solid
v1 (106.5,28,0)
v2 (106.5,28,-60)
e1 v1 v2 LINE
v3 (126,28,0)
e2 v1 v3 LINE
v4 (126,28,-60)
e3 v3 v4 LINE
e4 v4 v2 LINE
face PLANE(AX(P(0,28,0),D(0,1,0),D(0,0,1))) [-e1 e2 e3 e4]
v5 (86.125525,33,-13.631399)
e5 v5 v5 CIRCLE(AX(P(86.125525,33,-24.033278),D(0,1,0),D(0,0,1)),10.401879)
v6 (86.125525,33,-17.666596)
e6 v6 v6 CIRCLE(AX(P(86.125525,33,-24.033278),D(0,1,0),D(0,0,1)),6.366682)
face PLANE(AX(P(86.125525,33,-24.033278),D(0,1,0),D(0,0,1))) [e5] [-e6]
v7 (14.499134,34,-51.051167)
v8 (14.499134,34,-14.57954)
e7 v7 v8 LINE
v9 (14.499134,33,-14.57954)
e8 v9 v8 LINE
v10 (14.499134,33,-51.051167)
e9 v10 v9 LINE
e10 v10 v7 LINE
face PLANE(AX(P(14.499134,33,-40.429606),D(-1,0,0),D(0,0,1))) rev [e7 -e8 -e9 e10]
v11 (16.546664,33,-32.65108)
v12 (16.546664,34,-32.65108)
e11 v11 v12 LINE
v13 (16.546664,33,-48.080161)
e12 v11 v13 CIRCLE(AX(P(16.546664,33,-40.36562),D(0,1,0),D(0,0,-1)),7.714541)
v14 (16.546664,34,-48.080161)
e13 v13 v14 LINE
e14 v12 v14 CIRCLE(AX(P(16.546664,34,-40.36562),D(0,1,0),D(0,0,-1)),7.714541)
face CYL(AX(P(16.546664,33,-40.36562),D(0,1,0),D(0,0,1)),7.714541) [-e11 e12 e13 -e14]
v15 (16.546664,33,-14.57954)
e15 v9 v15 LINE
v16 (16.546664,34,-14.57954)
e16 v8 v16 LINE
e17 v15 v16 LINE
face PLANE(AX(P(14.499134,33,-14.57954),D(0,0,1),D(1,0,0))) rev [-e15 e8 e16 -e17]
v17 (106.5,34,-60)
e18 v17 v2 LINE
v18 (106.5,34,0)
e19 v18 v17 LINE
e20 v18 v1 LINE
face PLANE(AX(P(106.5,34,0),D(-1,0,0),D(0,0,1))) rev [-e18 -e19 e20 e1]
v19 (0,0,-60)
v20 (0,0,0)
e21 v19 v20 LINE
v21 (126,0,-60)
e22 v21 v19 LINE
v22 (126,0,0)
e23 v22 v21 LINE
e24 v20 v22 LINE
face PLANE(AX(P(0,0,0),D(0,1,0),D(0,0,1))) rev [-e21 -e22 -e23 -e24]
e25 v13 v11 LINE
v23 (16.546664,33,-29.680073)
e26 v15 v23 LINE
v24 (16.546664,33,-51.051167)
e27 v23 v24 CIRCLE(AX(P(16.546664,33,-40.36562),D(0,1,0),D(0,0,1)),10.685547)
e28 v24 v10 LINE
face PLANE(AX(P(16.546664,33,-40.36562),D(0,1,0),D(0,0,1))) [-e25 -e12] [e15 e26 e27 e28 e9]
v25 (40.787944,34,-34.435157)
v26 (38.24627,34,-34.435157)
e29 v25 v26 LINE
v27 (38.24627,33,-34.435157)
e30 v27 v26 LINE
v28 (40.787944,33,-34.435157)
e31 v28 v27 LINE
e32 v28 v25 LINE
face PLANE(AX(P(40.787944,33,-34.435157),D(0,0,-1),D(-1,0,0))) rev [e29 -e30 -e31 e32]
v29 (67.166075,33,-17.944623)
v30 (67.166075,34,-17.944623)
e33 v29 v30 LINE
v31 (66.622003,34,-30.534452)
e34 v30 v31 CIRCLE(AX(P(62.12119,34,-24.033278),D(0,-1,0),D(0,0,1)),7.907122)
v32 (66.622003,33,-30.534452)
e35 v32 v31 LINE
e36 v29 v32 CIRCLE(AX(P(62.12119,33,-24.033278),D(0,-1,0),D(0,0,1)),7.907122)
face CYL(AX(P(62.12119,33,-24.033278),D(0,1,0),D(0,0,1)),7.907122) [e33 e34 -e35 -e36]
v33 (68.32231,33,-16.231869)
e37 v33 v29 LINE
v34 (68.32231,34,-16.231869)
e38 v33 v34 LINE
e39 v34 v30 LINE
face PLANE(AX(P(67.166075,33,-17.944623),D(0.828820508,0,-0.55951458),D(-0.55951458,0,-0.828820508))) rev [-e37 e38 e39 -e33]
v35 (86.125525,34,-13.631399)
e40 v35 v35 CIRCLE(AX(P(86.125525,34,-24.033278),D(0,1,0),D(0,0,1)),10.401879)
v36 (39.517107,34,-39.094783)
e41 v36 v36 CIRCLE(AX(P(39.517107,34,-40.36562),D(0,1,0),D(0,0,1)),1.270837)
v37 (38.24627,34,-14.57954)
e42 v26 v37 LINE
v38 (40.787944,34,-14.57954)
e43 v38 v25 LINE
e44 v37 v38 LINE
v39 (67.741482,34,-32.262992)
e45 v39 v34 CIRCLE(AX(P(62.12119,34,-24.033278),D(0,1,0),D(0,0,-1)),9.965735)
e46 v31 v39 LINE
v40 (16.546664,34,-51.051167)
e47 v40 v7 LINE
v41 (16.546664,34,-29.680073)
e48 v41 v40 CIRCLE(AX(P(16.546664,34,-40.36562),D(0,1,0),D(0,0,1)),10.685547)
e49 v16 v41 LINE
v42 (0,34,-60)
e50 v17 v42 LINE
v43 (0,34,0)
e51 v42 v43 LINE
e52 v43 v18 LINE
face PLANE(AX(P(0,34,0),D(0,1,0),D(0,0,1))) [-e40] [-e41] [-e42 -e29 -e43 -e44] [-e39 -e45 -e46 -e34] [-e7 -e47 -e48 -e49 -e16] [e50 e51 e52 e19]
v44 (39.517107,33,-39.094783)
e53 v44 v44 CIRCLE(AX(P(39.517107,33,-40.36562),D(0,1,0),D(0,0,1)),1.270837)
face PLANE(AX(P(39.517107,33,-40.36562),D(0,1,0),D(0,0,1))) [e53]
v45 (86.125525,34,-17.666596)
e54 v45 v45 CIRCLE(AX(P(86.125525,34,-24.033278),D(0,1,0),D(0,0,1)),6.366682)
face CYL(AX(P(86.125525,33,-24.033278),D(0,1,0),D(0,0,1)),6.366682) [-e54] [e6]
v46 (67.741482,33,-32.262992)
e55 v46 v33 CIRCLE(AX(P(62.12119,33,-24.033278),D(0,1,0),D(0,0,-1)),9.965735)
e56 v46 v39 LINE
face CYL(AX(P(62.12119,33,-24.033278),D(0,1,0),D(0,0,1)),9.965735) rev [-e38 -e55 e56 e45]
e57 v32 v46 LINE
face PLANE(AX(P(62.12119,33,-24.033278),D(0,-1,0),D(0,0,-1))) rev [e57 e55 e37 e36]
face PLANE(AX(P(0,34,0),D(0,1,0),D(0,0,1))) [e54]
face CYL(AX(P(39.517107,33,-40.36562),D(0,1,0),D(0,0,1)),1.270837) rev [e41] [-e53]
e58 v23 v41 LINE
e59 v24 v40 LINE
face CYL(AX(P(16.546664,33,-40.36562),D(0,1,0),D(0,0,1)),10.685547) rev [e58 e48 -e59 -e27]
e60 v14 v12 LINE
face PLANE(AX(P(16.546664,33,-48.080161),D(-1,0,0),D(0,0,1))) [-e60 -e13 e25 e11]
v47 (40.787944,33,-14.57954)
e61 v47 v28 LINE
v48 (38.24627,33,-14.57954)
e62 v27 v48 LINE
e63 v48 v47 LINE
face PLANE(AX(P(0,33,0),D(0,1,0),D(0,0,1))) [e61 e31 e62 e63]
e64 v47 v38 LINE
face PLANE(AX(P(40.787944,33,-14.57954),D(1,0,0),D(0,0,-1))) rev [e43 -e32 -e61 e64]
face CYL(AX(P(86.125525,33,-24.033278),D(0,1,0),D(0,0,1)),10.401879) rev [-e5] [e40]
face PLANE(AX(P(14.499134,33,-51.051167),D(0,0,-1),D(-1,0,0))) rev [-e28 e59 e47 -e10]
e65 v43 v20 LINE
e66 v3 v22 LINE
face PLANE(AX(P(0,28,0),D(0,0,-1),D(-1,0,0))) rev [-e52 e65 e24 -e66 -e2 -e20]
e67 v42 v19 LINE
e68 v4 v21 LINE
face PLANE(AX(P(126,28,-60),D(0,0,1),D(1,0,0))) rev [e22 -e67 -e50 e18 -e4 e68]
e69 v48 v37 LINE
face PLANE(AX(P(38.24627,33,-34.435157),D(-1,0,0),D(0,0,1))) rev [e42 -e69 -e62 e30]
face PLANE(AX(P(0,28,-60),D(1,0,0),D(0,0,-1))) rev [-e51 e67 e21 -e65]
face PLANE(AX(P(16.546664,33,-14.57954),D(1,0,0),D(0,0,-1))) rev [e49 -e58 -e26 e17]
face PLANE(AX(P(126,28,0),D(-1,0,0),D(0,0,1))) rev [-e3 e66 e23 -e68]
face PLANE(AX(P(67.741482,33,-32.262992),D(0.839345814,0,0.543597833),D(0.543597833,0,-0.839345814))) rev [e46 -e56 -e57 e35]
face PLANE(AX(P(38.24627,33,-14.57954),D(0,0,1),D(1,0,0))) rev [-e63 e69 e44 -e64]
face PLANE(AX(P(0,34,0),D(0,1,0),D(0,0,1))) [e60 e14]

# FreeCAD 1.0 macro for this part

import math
import FreeCAD as App
import Part
import Sketcher
from FreeCAD import Vector


def add_polygon(sketch, points):
    """Adds a closed chain of lines whose ends are joined by coincident constraints."""
    first, n = sketch.GeometryCount, len(points)
    for a, b in zip(points, points[1:] + points[:1]):
        sketch.addGeometry(Part.LineSegment(App.Vector(*a, 0), App.Vector(*b, 0)), False)
    for i in range(n):
        sketch.addConstraint(Sketcher.Constraint("Coincident", first + i, 2, first + (i + 1) % n, 1))

doc = App.newDocument("Part")
params = doc.addObject("Spreadsheet::Sheet", "Params")
for row, (alias, value) in enumerate([
    ("sketch1_width", "126 mm"),
    ("sketch1_height", "60 mm"),
    ("pad1_length", "28 mm"),
    ("sketch2_height", "60 mm"),
    ("sketch2_width", "106.5 mm"),
    ("pad2_length", "6 mm"),
    ("pocket1_length", "1 mm"),
], start=1):
    params.set(f"A{row}", alias)
    params.set(f"B{row}", "=" + value)
    params.setAlias(f"B{row}", alias)

body = doc.addObject("PartDesign::Body", "Body")

# Sketch on XZ plane
sketch1 = body.newObject("Sketcher::SketchObject", "Sketch")
sketch1.AttachmentSupport = (doc.getObject("XZ_Plane"), [""])
sketch1.MapMode = "FlatFace"
add_polygon(sketch1, [(0, -60), (0, 0), (126, 0), (126, -60)])  # lines 0-3
sketch1.addConstraint([
    Sketcher.Constraint("Vertical", 0),
    Sketcher.Constraint("Horizontal", 1),
    Sketcher.Constraint("Vertical", 2),
    Sketcher.Constraint("Horizontal", 3),
    Sketcher.Constraint("Coincident", 0, 2, -1, 1),
    Sketcher.Constraint("DistanceX", 1, 1, 1, 2, 126.0),
    Sketcher.Constraint("DistanceY", 0, 1, 0, 2, 60.0),
])
sketch1.setExpression("Constraints[9]", "Params.sketch1_width")
sketch1.setExpression("Constraints[10]", "Params.sketch1_height")
pad1 = body.newObject("PartDesign::Pad", "Pad")
pad1.Profile = sketch1
pad1.setExpression("Length", "Params.pad1_length")
pad1.Reversed = True

# Sketch on XZ plane
sketch2 = body.newObject("Sketcher::SketchObject", "Sketch001")
sketch2.AttachmentSupport = (doc.getObject("XZ_Plane"), [""])
sketch2.MapMode = "FlatFace"
sketch2.AttachmentOffset = App.Placement(Vector(0, 0, -28), App.Rotation())
add_polygon(sketch2, [(0, -60), (0, 0), (106.5, 0), (106.5, -60)])  # lines 0-3
sketch2.addConstraint([
    Sketcher.Constraint("Vertical", 0),
    Sketcher.Constraint("Horizontal", 1),
    Sketcher.Constraint("Vertical", 2),
    Sketcher.Constraint("Horizontal", 3),
    Sketcher.Constraint("Coincident", 0, 2, -1, 1),
    Sketcher.Constraint("DistanceY", 0, 1, 0, 2, 60.0),
    Sketcher.Constraint("DistanceX", 1, 1, 1, 2, 106.5),
])
sketch2.setExpression("Constraints[9]", "Params.sketch2_height")
sketch2.setExpression("Constraints[10]", "Params.sketch2_width")
pad2 = body.newObject("PartDesign::Pad", "Pad001")
pad2.Profile = sketch2
pad2.setExpression("Length", "Params.pad2_length")
pad2.Reversed = True

# Sketch on XZ plane
sketch3 = body.newObject("Sketcher::SketchObject", "Sketch002")
sketch3.AttachmentSupport = (doc.getObject("XZ_Plane"), [""])
sketch3.MapMode = "FlatFace"
sketch3.AttachmentOffset = App.Placement(Vector(0, 0, -34), App.Rotation())
sketch3.addGeometry(Part.Circle(Vector(39.517107, -40.36562, 0), Vector(0, 0, 1), 1.270837), False)  # 0
sketch3.addGeometry(Part.Circle(Vector(86.125525, -24.033278, 0), Vector(0, 0, 1), 10.401879), False)  # 1
sketch3.addGeometry(Part.Circle(Vector(86.125525, -24.033278, 0), Vector(0, 0, 1), 6.366682), False)  # 2
sketch3.addGeometry(Part.LineSegment(Vector(14.499134, -14.57954, 0), Vector(16.546664, -14.57954, 0)), False)  # 3
sketch3.addGeometry(Part.LineSegment(Vector(16.546664, -14.57954, 0), Vector(16.546664, -29.680073, 0)), False)  # 4
sketch3.addGeometry(Part.ArcOfCircle(Part.Circle(Vector(16.546664, -40.36562, 0), Vector(0, 0, 1), 10.685547), math.radians(-90), math.radians(90)), False)  # 5
sketch3.addGeometry(Part.LineSegment(Vector(16.546664, -51.051167, 0), Vector(14.499134, -51.051167, 0)), False)  # 6
sketch3.addGeometry(Part.LineSegment(Vector(14.499134, -51.051167, 0), Vector(14.499134, -14.57954, 0)), False)  # 7
sketch3.addGeometry(Part.LineSegment(Vector(16.546664, -32.65108, 0), Vector(16.546664, -48.080161, 0)), False)  # 8
sketch3.addGeometry(Part.ArcOfCircle(Part.Circle(Vector(16.546664, -40.36562, 0), Vector(0, 0, 1), 7.714541), math.radians(-90), math.radians(90)), False)  # 9
add_polygon(sketch3, [(38.24627, -34.435157), (38.24627, -14.57954), (40.787944, -14.57954), (40.787944, -34.435157)])  # lines 10-13
sketch3.addGeometry(Part.LineSegment(Vector(66.622003, -30.534452, 0), Vector(67.741482, -32.262992, 0)), False)  # 14
sketch3.addGeometry(Part.ArcOfCircle(Part.Circle(Vector(62.12119, -24.033278, 0), Vector(0, 0, 1), 9.965735), math.radians(51.519802), math.radians(304.330217)), False)  # 15
sketch3.addGeometry(Part.LineSegment(Vector(68.32231, -16.231869, 0), Vector(67.166075, -17.944623, 0)), False)  # 16
sketch3.addGeometry(Part.ArcOfCircle(Part.Circle(Vector(62.12119, -24.033278, 0), Vector(0, 0, 1), 7.907122), math.radians(50.355825), math.radians(304.695154)), False)  # 17
sketch3.addConstraint([
    Sketcher.Constraint("Coincident", 3, 2, 4, 1),
    Sketcher.Constraint("Coincident", 4, 2, 5, 2),
    Sketcher.Constraint("Tangent", 5, 1, 6, 1),
    Sketcher.Constraint("Coincident", 6, 2, 7, 1),
    Sketcher.Constraint("Coincident", 7, 2, 3, 1),
    Sketcher.Constraint("Coincident", 8, 1, 9, 2),
    Sketcher.Constraint("Coincident", 9, 1, 8, 2),
    Sketcher.Constraint("Coincident", 14, 2, 15, 2),
    Sketcher.Constraint("Coincident", 15, 1, 16, 1),
    Sketcher.Constraint("Coincident", 16, 2, 17, 1),
    Sketcher.Constraint("Coincident", 17, 2, 14, 1),
    Sketcher.Constraint("Horizontal", 3),
    Sketcher.Constraint("Vertical", 4),
    Sketcher.Constraint("Horizontal", 6),
    Sketcher.Constraint("Vertical", 7),
    Sketcher.Constraint("Vertical", 8),
    Sketcher.Constraint("Vertical", 10),
    Sketcher.Constraint("Horizontal", 11),
    Sketcher.Constraint("Vertical", 12),
    Sketcher.Constraint("Horizontal", 13),
    Sketcher.Constraint("Coincident", 2, 3, 1, 3),
    Sketcher.Constraint("Coincident", 9, 3, 5, 3),
    Sketcher.Constraint("Coincident", 17, 3, 15, 3),
    Sketcher.Constraint("Horizontal", 0, 3, 5, 3),
    Sketcher.Constraint("Horizontal", 2, 3, 15, 3),
    Sketcher.Constraint("Horizontal", 7, 2, 10, 2),
    Sketcher.Constraint("Vertical", 9, 3, 3, 2),
    Sketcher.Constraint("Vertical", 5, 1, 8, 1),
    Sketcher.Constraint("Radius", 9, 7.714541),
    Sketcher.Constraint("Diameter", 0, 2.541674),
    Sketcher.Constraint("Diameter", 1, 20.803758),
    Sketcher.Constraint("Diameter", 2, 12.733364),
    Sketcher.Constraint("Radius", 5, 10.685547),
    Sketcher.Constraint("Radius", 15, 9.965735),
    Sketcher.Constraint("Radius", 17, 7.907122),
    Sketcher.Constraint("DistanceX", 3, 1, 3, 2, 2.04753),
    Sketcher.Constraint("Distance", 14, 2.059389),
    Sketcher.Constraint("DistanceX", 11, 1, 11, 2, 2.541674),
    Sketcher.Constraint("DistanceY", 4, 2, 4, 1, 15.100533),
    Sketcher.Constraint("DistanceY", 10, 1, 10, 2, 19.855617),
    Sketcher.Constraint("DistanceY", 0, 3, -1, 1, 40.36562),
    Sketcher.Constraint("DistanceY", 1, 3, -1, 1, 24.033278),
    Sketcher.Constraint("DistanceX", -1, 1, 15, 3, 62.12119),
    Sketcher.Constraint("DistanceX", -1, 1, 10, 2, 38.24627),
    Sketcher.Constraint("DistanceY", 14, 2, -1, 1, 32.262992),
    Sketcher.Constraint("DistanceX", -1, 1, 15, 1, 68.32231),
    Sketcher.Constraint("DistanceX", 0, 3, 1, 3, 46.608418),
    Sketcher.Constraint("DistanceX", 5, 3, 1, 3, 69.578861),
    Sketcher.Constraint("DistanceX", 3, 2, 11, 2, 24.24128),
    Sketcher.Constraint("DistanceY", 14, 2, 16, 2, 14.318368),
])
pocket1 = body.newObject("PartDesign::Pocket", "Pocket")
pocket1.Profile = sketch3
pocket1.setExpression("Length", "Params.pocket1_length")
pocket1.Reversed = True

doc.recompute()
